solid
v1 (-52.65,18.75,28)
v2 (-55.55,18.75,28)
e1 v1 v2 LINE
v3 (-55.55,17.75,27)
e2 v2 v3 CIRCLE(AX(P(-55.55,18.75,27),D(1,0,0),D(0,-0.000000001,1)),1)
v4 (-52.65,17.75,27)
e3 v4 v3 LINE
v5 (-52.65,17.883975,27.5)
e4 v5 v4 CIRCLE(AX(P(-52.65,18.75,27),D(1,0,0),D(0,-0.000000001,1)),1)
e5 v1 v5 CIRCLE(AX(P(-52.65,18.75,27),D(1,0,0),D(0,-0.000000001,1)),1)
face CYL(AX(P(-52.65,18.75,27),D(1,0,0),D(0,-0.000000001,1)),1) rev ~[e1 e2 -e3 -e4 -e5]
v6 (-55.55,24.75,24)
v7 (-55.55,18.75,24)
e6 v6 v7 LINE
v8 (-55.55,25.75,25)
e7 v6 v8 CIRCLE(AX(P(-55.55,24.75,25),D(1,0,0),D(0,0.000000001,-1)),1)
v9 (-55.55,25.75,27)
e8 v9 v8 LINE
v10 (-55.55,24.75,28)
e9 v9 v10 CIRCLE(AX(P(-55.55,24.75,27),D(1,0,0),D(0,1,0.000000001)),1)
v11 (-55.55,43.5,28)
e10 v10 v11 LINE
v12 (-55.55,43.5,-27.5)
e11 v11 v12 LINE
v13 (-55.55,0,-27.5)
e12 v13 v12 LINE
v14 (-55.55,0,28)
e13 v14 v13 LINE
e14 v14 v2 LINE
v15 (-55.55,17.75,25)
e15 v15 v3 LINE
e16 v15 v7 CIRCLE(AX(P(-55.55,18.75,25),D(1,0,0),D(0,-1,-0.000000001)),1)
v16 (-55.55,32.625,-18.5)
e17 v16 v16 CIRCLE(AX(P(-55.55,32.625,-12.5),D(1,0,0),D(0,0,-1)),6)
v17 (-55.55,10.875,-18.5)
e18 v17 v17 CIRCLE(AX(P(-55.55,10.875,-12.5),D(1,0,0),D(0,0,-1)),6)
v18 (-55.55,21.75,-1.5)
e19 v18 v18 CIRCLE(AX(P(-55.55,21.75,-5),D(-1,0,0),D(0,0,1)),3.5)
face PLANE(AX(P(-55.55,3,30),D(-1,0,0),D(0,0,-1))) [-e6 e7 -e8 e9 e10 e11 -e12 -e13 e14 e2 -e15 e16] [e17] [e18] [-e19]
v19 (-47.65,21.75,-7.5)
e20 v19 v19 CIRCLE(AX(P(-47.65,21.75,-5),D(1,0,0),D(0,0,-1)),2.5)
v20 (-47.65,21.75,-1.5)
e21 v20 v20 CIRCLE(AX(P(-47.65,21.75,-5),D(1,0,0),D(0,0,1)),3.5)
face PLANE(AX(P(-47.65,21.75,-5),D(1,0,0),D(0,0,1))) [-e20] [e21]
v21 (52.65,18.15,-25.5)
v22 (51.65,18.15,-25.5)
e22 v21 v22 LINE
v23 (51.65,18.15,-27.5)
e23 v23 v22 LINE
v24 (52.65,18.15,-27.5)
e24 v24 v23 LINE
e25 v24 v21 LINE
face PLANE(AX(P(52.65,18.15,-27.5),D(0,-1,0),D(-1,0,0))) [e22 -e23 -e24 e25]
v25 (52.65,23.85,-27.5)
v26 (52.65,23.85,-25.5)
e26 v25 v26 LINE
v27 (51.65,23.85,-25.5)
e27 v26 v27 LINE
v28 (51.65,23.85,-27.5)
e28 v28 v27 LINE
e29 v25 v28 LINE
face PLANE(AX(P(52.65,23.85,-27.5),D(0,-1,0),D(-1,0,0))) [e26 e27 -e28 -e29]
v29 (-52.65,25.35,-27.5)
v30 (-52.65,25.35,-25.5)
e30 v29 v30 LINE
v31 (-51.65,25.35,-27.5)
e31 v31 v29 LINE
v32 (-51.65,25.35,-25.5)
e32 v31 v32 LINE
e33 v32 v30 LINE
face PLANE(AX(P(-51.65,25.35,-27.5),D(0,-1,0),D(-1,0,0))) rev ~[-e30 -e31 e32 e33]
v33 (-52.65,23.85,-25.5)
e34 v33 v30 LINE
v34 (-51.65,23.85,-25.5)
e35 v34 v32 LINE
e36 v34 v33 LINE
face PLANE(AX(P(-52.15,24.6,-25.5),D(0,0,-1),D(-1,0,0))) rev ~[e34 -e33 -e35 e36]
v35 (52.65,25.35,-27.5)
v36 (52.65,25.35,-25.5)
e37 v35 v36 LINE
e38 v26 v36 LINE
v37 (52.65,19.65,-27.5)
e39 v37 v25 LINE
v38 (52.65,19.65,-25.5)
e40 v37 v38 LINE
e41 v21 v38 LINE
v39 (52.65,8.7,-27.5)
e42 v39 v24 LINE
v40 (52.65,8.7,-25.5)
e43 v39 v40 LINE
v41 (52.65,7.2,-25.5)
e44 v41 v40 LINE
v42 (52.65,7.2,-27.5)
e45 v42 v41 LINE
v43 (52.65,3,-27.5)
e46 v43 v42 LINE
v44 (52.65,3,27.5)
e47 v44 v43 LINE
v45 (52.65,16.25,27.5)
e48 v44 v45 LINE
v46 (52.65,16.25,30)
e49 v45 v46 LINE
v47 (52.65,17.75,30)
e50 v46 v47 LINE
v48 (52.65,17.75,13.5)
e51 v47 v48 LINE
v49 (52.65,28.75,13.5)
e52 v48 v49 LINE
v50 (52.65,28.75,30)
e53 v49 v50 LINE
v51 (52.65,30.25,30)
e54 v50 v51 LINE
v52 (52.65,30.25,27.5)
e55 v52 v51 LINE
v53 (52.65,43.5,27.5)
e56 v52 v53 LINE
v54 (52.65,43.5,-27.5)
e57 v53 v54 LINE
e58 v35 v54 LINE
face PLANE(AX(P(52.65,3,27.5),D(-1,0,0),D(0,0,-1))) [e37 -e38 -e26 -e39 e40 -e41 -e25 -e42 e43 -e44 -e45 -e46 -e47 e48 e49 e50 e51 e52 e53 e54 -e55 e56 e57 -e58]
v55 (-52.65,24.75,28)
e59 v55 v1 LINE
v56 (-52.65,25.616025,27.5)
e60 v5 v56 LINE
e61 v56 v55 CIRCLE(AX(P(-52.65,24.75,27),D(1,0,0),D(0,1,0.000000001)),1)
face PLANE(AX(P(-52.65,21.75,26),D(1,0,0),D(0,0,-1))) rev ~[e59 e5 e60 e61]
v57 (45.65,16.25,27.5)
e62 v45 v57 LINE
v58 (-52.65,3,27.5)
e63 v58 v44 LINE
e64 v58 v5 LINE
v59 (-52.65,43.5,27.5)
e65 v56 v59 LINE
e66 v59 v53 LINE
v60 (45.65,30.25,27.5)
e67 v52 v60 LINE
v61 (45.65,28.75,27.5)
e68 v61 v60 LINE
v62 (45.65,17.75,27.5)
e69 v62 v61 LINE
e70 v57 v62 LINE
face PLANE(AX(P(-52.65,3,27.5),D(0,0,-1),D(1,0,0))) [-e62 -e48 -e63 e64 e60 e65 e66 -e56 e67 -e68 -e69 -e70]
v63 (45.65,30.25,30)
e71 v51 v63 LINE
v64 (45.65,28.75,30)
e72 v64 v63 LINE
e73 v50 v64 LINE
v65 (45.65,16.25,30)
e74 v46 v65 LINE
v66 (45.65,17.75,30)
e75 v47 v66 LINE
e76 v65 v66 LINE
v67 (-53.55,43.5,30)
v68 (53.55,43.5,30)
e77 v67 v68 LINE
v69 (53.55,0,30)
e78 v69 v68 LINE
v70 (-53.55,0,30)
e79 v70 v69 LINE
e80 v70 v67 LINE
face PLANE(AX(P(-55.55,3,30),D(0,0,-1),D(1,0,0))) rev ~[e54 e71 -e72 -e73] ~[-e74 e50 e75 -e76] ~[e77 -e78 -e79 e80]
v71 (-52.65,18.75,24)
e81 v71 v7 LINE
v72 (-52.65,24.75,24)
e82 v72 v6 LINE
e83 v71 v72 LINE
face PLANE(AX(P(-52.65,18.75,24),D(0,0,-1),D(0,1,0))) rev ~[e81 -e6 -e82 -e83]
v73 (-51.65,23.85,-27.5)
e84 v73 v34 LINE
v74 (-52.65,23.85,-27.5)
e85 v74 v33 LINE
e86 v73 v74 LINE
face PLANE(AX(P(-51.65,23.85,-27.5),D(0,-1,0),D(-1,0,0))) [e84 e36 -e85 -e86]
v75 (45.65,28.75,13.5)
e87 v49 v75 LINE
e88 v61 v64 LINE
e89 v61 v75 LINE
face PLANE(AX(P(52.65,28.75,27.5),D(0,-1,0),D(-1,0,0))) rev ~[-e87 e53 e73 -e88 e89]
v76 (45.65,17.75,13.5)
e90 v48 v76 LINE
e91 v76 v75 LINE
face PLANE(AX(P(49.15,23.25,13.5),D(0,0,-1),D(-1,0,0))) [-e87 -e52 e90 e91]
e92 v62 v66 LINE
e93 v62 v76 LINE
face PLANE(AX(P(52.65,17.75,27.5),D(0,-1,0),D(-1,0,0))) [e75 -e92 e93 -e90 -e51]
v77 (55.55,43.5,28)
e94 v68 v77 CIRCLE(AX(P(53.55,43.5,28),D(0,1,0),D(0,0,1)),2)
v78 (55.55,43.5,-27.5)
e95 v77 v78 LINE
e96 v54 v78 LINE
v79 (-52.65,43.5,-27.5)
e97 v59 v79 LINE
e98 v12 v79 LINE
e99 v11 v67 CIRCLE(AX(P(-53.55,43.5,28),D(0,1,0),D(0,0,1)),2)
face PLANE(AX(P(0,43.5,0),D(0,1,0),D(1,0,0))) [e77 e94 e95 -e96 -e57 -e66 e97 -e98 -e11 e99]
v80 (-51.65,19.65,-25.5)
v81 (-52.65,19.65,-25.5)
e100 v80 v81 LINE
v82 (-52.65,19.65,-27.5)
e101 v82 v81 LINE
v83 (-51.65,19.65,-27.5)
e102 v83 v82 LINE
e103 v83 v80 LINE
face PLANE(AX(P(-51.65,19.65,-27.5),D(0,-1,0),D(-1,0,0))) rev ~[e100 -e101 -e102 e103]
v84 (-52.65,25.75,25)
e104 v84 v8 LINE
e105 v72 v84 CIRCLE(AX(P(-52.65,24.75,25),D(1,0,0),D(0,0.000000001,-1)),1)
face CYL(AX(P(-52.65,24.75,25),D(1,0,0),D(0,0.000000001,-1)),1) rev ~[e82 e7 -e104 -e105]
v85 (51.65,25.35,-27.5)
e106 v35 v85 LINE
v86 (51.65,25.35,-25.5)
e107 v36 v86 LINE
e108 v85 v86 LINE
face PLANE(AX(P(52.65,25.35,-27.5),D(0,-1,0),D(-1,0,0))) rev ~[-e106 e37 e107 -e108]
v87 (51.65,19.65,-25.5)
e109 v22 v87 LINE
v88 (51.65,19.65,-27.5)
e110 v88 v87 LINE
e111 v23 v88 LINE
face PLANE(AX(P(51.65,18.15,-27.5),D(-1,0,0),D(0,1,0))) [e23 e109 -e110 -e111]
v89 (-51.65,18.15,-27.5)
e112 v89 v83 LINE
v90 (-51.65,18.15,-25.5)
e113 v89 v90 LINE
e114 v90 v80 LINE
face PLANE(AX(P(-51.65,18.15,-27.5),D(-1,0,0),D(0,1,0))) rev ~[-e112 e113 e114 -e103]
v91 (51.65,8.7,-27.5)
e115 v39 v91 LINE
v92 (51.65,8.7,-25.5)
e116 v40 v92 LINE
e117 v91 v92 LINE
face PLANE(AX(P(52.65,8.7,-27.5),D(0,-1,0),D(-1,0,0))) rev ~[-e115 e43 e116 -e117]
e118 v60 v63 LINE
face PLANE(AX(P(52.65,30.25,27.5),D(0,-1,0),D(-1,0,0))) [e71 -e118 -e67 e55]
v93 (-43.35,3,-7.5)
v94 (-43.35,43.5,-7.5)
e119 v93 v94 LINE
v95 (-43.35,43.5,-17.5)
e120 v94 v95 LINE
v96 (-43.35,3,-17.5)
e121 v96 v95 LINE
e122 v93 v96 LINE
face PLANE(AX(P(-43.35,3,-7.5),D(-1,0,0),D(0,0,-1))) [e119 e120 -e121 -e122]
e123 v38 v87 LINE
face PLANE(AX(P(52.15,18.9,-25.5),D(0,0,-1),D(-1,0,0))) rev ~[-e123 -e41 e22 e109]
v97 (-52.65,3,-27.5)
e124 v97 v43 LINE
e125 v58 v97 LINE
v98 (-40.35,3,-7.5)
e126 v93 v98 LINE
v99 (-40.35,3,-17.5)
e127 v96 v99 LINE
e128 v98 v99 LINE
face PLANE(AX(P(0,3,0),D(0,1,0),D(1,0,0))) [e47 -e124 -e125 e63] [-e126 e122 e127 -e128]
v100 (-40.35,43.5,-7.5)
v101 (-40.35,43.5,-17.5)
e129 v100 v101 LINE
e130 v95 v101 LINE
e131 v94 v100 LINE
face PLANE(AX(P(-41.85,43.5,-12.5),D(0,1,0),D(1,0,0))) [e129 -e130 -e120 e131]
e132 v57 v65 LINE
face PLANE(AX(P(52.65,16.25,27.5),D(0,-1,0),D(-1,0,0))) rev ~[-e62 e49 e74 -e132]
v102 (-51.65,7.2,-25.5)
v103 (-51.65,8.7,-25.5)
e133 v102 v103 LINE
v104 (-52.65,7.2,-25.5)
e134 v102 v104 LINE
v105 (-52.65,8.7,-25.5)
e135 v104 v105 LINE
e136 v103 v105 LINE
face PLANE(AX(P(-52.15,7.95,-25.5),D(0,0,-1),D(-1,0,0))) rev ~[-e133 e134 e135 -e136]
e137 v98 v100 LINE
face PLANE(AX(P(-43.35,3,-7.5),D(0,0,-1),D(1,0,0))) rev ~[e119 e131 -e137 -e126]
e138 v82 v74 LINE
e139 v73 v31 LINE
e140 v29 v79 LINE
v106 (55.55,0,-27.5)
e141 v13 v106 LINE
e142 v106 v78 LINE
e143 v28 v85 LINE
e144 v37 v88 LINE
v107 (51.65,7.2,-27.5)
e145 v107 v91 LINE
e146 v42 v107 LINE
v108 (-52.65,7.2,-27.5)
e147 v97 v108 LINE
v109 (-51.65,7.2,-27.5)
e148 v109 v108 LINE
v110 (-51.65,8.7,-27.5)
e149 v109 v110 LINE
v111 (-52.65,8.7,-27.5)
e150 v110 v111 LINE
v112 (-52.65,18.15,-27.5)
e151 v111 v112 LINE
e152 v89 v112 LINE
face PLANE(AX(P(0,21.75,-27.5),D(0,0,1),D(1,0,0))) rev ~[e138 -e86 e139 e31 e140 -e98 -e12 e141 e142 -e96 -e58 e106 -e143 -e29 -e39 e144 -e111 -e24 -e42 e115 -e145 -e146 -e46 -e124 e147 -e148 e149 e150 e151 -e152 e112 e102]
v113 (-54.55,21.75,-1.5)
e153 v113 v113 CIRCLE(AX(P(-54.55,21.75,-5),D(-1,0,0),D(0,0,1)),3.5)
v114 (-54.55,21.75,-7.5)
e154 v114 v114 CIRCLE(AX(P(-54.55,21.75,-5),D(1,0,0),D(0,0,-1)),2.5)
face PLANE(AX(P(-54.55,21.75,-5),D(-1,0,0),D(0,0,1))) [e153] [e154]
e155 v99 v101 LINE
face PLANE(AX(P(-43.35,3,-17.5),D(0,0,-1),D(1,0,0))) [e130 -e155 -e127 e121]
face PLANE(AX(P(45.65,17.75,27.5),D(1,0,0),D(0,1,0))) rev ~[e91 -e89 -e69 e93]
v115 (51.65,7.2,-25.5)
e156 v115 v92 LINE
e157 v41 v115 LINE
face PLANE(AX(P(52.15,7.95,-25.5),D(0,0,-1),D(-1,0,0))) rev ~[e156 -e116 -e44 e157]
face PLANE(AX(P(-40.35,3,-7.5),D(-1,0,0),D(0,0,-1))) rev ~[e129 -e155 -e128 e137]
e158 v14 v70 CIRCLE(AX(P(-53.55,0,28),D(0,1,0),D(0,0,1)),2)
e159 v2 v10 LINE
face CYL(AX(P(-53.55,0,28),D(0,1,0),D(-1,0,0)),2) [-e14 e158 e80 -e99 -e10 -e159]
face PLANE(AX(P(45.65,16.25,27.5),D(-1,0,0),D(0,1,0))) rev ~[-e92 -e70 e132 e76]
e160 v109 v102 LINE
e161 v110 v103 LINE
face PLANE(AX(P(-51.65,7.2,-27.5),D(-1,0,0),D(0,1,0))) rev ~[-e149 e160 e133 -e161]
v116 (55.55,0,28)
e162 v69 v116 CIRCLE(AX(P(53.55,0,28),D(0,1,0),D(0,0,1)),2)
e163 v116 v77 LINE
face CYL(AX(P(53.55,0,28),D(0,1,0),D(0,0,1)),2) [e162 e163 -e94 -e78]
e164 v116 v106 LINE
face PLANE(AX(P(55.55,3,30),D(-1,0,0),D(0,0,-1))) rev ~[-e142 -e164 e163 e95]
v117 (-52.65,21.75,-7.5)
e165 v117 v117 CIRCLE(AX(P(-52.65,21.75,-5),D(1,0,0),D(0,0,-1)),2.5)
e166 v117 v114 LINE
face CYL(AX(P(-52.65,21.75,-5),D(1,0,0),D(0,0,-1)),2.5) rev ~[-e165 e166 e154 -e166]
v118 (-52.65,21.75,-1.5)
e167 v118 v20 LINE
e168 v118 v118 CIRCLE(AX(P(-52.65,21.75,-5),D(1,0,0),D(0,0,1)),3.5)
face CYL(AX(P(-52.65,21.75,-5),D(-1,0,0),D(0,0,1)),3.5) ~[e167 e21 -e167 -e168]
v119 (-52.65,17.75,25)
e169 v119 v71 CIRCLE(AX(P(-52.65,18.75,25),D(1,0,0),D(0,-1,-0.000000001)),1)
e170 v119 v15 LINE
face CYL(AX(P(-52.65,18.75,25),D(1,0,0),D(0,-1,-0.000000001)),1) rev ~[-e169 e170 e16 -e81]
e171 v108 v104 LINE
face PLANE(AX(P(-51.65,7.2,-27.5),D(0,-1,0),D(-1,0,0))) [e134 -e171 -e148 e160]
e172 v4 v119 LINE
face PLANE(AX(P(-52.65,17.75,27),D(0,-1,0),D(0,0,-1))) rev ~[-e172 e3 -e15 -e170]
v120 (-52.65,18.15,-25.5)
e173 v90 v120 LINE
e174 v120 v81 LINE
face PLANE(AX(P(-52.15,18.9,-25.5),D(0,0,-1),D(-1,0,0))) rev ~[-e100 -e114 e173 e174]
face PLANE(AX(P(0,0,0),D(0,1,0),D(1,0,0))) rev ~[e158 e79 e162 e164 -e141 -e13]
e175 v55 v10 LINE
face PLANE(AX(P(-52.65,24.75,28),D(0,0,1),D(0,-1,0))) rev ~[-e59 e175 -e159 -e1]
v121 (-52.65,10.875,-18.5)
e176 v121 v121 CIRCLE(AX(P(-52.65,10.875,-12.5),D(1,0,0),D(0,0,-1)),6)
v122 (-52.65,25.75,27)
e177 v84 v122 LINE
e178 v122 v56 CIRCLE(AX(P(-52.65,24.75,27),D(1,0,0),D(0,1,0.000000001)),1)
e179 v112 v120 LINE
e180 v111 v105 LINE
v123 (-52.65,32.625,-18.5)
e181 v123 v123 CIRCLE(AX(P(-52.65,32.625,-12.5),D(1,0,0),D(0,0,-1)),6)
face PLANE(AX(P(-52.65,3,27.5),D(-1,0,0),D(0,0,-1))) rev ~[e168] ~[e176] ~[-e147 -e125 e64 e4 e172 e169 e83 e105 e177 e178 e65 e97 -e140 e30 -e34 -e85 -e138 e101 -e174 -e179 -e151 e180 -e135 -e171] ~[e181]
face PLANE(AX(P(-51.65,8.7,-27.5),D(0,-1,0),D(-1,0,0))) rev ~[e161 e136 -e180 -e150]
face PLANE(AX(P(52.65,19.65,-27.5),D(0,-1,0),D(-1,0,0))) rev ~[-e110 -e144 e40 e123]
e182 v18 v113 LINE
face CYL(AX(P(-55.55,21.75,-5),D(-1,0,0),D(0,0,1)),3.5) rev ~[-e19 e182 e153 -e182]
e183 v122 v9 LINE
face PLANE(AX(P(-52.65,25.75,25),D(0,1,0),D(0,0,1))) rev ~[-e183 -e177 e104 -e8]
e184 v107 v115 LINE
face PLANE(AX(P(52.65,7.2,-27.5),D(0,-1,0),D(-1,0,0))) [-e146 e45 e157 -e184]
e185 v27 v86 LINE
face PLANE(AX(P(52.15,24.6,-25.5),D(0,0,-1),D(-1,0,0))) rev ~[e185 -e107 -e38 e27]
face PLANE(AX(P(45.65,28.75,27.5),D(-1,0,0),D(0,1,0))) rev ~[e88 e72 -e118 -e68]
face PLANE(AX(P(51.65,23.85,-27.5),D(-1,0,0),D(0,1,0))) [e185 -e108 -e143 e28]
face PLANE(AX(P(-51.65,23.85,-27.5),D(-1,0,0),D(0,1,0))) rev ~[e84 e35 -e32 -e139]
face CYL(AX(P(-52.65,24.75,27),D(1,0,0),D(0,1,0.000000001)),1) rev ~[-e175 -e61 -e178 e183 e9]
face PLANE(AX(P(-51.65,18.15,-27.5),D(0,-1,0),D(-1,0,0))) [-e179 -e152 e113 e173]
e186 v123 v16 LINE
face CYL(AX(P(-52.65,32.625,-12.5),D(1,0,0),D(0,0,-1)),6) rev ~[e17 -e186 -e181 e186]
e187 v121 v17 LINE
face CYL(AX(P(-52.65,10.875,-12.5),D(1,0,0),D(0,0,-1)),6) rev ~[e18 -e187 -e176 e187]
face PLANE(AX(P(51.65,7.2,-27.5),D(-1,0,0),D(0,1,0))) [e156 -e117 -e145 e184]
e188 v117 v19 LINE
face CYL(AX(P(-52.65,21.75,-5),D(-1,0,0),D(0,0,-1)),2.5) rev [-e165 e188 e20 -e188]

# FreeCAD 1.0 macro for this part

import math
import FreeCAD as App
import Part
import Sketcher

V = App.Vector


def edges_at(feature, points):
    """Names of the edges that pass closest to the given points."""
    edges = feature.Shape.Edges
    near = lambda p: min(range(len(edges)), key=lambda i: edges[i].distToShape(Part.Vertex(*p))[0])
    return sorted({f"Edge{near(p) + 1}" for p in points})

doc = App.newDocument("Part")
body = doc.addObject("PartDesign::Body", "Body")

# Sketch on XZ plane
sketch1 = body.newObject("Sketcher::SketchObject", "Sketch")
sketch1.AttachmentSupport = (doc.getObject("XZ_Plane"), [""])
sketch1.MapMode = "FlatFace"
sketch1.addGeometry([
    Part.LineSegment(V(-55.55, -30, 0), V(-55.55, 30, 0)),
    Part.LineSegment(V(-55.55, 30, 0), V(55.55, 30, 0)),
    Part.LineSegment(V(55.55, 30, 0), V(55.55, -30, 0)),
    Part.LineSegment(V(55.55, -30, 0), V(-55.55, -30, 0)),
], False)
sketch1.addConstraint([
    Sketcher.Constraint("Coincident", 0, 2, 1, 1),
    Sketcher.Constraint("Coincident", 1, 2, 2, 1),
    Sketcher.Constraint("Coincident", 2, 2, 3, 1),
    Sketcher.Constraint("Coincident", 3, 2, 0, 1),
    Sketcher.Constraint("Vertical", 0),
    Sketcher.Constraint("Horizontal", 1),
    Sketcher.Constraint("Vertical", 2),
    Sketcher.Constraint("Horizontal", 3),
    Sketcher.Constraint("Symmetric", 0, 2, 2, 2, -1, 1),
    Sketcher.Constraint("DistanceY", 0, 1, 0, 2, 60.0),
    Sketcher.Constraint("DistanceX", 1, 1, 1, 2, 111.1),
])
pad1 = body.newObject("PartDesign::Pad", "Pad")
pad1.Profile = sketch1
pad1.Length = 3
pad1.Reversed = True

# Sketch on XZ plane
sketch2 = body.newObject("Sketcher::SketchObject", "Sketch001")
sketch2.AttachmentSupport = (doc.getObject("XZ_Plane"), [""])
sketch2.MapMode = "FlatFace"
sketch2.AttachmentOffset = App.Placement(V(0, 0, -3), App.Rotation())
sketch2.addGeometry([
    Part.LineSegment(V(-55.55, -30, 0), V(-55.55, 30, 0)),  # 0
    Part.LineSegment(V(-55.55, 30, 0), V(55.55, 30, 0)),  # 1
    Part.LineSegment(V(55.55, 30, 0), V(55.55, -30, 0)),  # 2
    Part.LineSegment(V(55.55, -30, 0), V(-55.55, -30, 0)),  # 3
    Part.LineSegment(V(52.65, 27.5, 0), V(-52.65, 27.5, 0)),  # 4
    Part.LineSegment(V(-52.65, 27.5, 0), V(-52.65, -27.5, 0)),  # 5
    Part.LineSegment(V(-52.65, -27.5, 0), V(52.65, -27.5, 0)),  # 6
    Part.LineSegment(V(52.65, -27.5, 0), V(52.65, 27.5, 0)),  # 7
], False)
sketch2.addConstraint([
    Sketcher.Constraint("Coincident", 0, 2, 1, 1),
    Sketcher.Constraint("Coincident", 1, 2, 2, 1),
    Sketcher.Constraint("Coincident", 2, 2, 3, 1),
    Sketcher.Constraint("Coincident", 3, 2, 0, 1),
    Sketcher.Constraint("Coincident", 4, 2, 5, 1),
    Sketcher.Constraint("Coincident", 5, 2, 6, 1),
    Sketcher.Constraint("Coincident", 6, 2, 7, 1),
    Sketcher.Constraint("Coincident", 7, 2, 4, 1),
    Sketcher.Constraint("Vertical", 0),
    Sketcher.Constraint("Horizontal", 1),
    Sketcher.Constraint("Vertical", 2),
    Sketcher.Constraint("Horizontal", 3),
    Sketcher.Constraint("Horizontal", 4),
    Sketcher.Constraint("Vertical", 5),
    Sketcher.Constraint("Horizontal", 6),
    Sketcher.Constraint("Vertical", 7),
    Sketcher.Constraint("Symmetric", 0, 2, 2, 2, -1, 1),
    Sketcher.Constraint("Symmetric", 4, 2, 6, 2, -1, 1),
    Sketcher.Constraint("DistanceY", 0, 1, 0, 2, 60.0),
    Sketcher.Constraint("DistanceY", 5, 2, 5, 1, 55.0),
    Sketcher.Constraint("DistanceX", 1, 1, 1, 2, 111.1),
    Sketcher.Constraint("DistanceX", 4, 2, 4, 1, 105.3),
])
pad2 = body.newObject("PartDesign::Pad", "Pad001")
pad2.Profile = sketch2
pad2.Length = 40.5
pad2.Reversed = True

# Sketch on XY plane
sketch3 = body.newObject("Sketcher::SketchObject", "Sketch002")
sketch3.AttachmentSupport = (doc.getObject("XY_Plane"), [""])
sketch3.MapMode = "FlatFace"
sketch3.AttachmentOffset = App.Placement(V(0, 0, -30), App.Rotation())
sketch3.addGeometry([
    Part.Circle(V(27.775, 21.75, 0), V(0, 0, 1), 21),
    Part.Circle(V(-27.775, 21.75, 0), V(0, 0, 1), 21),
], False)
sketch3.addConstraint([
    Sketcher.Constraint("Equal", 0, 1),
    Sketcher.Constraint("Symmetric", 0, 3, 1, 3, -2),
    Sketcher.Constraint("Diameter", 0, 42.0),
    Sketcher.Constraint("DistanceY", -1, 1, 0, 3, 21.75),
    Sketcher.Constraint("DistanceX", 1, 3, 0, 3, 55.55),
])
pad3 = body.newObject("PartDesign::Pad", "Pad002")
pad3.Profile = sketch3
pad3.Length = 15
pad3.Reversed = True

# Sketch on XY plane
sketch4 = body.newObject("Sketcher::SketchObject", "Sketch003")
sketch4.AttachmentSupport = (doc.getObject("XY_Plane"), [""])
sketch4.MapMode = "FlatFace"
sketch4.AttachmentOffset = App.Placement(V(0, 0, -45), App.Rotation())
sketch4.addGeometry([
    Part.LineSegment(V(35.525, 40.25, 0), V(35.525, 3.25, 0)),  # 0
    Part.LineSegment(V(35.525, 3.25, 0), V(20.025, 3.25, 0)),  # 1
    Part.LineSegment(V(20.025, 3.25, 0), V(20.025, 40.25, 0)),  # 2
    Part.LineSegment(V(20.025, 40.25, 0), V(35.525, 40.25, 0)),  # 3
    Part.LineSegment(V(-20.025, 40.25, 0), V(-20.025, 3.25, 0)),  # 4
    Part.LineSegment(V(-20.025, 3.25, 0), V(-35.525, 3.25, 0)),  # 5
    Part.LineSegment(V(-35.525, 3.25, 0), V(-35.525, 40.25, 0)),  # 6
    Part.LineSegment(V(-35.525, 40.25, 0), V(-20.025, 40.25, 0)),  # 7
], False)
sketch4.addConstraint([
    Sketcher.Constraint("Coincident", 0, 2, 1, 1),
    Sketcher.Constraint("Coincident", 1, 2, 2, 1),
    Sketcher.Constraint("Coincident", 2, 2, 3, 1),
    Sketcher.Constraint("Coincident", 3, 2, 0, 1),
    Sketcher.Constraint("Coincident", 4, 2, 5, 1),
    Sketcher.Constraint("Coincident", 5, 2, 6, 1),
    Sketcher.Constraint("Coincident", 6, 2, 7, 1),
    Sketcher.Constraint("Coincident", 7, 2, 4, 1),
    Sketcher.Constraint("Vertical", 0),
    Sketcher.Constraint("Horizontal", 1),
    Sketcher.Constraint("Vertical", 2),
    Sketcher.Constraint("Horizontal", 3),
    Sketcher.Constraint("Vertical", 4),
    Sketcher.Constraint("Horizontal", 5),
    Sketcher.Constraint("Vertical", 6),
    Sketcher.Constraint("Horizontal", 7),
    Sketcher.Constraint("Symmetric", 1, 2, 4, 2, -2),
    Sketcher.Constraint("Symmetric", 3, 2, 6, 2, -2),
    Sketcher.Constraint("DistanceY", 0, 2, 0, 1, 37.0),
    Sketcher.Constraint("DistanceX", 1, 2, 1, 1, 15.5),
    Sketcher.Constraint("DistanceY", -1, 1, 0, 2, 3.25),
    Sketcher.Constraint("DistanceX", 4, 2, 1, 2, 40.05),
])
pocket1 = body.newObject("PartDesign::Pocket", "Pocket")
pocket1.Profile = sketch4
pocket1.Length = 21
pocket1.Reversed = True

# Sketch on XY plane
sketch5 = body.newObject("Sketcher::SketchObject", "Sketch004")
sketch5.AttachmentSupport = (doc.getObject("XY_Plane"), [""])
sketch5.MapMode = "FlatFace"
sketch5.AttachmentOffset = App.Placement(V(0, 0, -44), App.Rotation())
sketch5.addGeometry([
    Part.Circle(V(27.775, 21.75, 0), V(0, 0, 1), 21),  # 0
    Part.LineSegment(V(21.625, 4.6, 0), V(33.925, 4.6, 0)),  # 1
    Part.LineSegment(V(33.925, 4.6, 0), V(33.925, 38.9, 0)),  # 2
    Part.LineSegment(V(33.925, 38.9, 0), V(21.625, 38.9, 0)),  # 3
    Part.LineSegment(V(21.625, 38.9, 0), V(21.625, 4.6, 0)),  # 4
], False)
sketch5.addConstraint([
    Sketcher.Constraint("Coincident", 1, 2, 2, 1),
    Sketcher.Constraint("Coincident", 2, 2, 3, 1),
    Sketcher.Constraint("Coincident", 3, 2, 4, 1),
    Sketcher.Constraint("Coincident", 4, 2, 1, 1),
    Sketcher.Constraint("Horizontal", 1),
    Sketcher.Constraint("Vertical", 2),
    Sketcher.Constraint("Horizontal", 3),
    Sketcher.Constraint("Vertical", 4),
    Sketcher.Constraint("Diameter", 0, 42.0),
    Sketcher.Constraint("DistanceX", 1, 1, 1, 2, 12.3),
    Sketcher.Constraint("DistanceY", 2, 1, 2, 2, 34.3),
    Sketcher.Constraint("DistanceY", -1, 1, 1, 2, 4.6),
    Sketcher.Constraint("DistanceY", -1, 1, 0, 3, 21.75),
    Sketcher.Constraint("DistanceX", 0, 3, 1, 2, 6.15),
    Sketcher.Constraint("DistanceX", -1, 1, 0, 3, 27.775),
])
pad4 = body.newObject("PartDesign::Pad", "Pad003")
pad4.Profile = sketch5
pad4.Length = 1
pad4.Reversed = True

# Sketch on XY plane
sketch6 = body.newObject("Sketcher::SketchObject", "Sketch005")
sketch6.AttachmentSupport = (doc.getObject("XY_Plane"), [""])
sketch6.MapMode = "FlatFace"
sketch6.AttachmentOffset = App.Placement(V(0, 0, -44), App.Rotation())
sketch6.addGeometry([
    Part.Circle(V(-27.775, 21.75, 0), V(0, 0, 1), 21),  # 0
    Part.LineSegment(V(-33.925, 4.6, 0), V(-21.625, 4.6, 0)),  # 1
    Part.LineSegment(V(-21.625, 4.6, 0), V(-21.625, 38.9, 0)),  # 2
    Part.LineSegment(V(-21.625, 38.9, 0), V(-33.925, 38.9, 0)),  # 3
    Part.LineSegment(V(-33.925, 38.9, 0), V(-33.925, 4.6, 0)),  # 4
], False)
sketch6.addConstraint([
    Sketcher.Constraint("Coincident", 1, 2, 2, 1),
    Sketcher.Constraint("Coincident", 2, 2, 3, 1),
    Sketcher.Constraint("Coincident", 3, 2, 4, 1),
    Sketcher.Constraint("Coincident", 4, 2, 1, 1),
    Sketcher.Constraint("Horizontal", 1),
    Sketcher.Constraint("Vertical", 2),
    Sketcher.Constraint("Horizontal", 3),
    Sketcher.Constraint("Vertical", 4),
    Sketcher.Constraint("Diameter", 0, 42.0),
    Sketcher.Constraint("DistanceX", 1, 1, 1, 2, 12.3),
    Sketcher.Constraint("DistanceY", 2, 1, 2, 2, 34.3),
    Sketcher.Constraint("DistanceY", -1, 1, 1, 2, 4.6),
    Sketcher.Constraint("DistanceY", -1, 1, 0, 3, 21.75),
    Sketcher.Constraint("DistanceX", 0, 3, 1, 2, 6.15),
    Sketcher.Constraint("DistanceX", 0, 3, -1, 1, 27.775),
])
pad5 = body.newObject("PartDesign::Pad", "Pad004")
pad5.Profile = sketch6
pad5.Length = 1
pad5.Reversed = True

# Sketch on XY plane
sketch7 = body.newObject("Sketcher::SketchObject", "Sketch006")
sketch7.AttachmentSupport = (doc.getObject("XY_Plane"), [""])
sketch7.MapMode = "FlatFace"
sketch7.AttachmentOffset = App.Placement(V(0, 0, -27.5), App.Rotation())
sketch7.addGeometry([
    Part.LineSegment(V(-63.122277, 56.09859, 0), V(-63.122277, -12.59859, 0)),
    Part.LineSegment(V(-63.122277, -12.59859, 0), V(63.122277, -12.59859, 0)),
    Part.LineSegment(V(63.122277, -12.59859, 0), V(63.122277, 56.09859, 0)),
    Part.LineSegment(V(63.122277, 56.09859, 0), V(-63.122277, 56.09859, 0)),
], False)
sketch7.addConstraint([
    Sketcher.Constraint("Coincident", 0, 2, 1, 1),
    Sketcher.Constraint("Coincident", 1, 2, 2, 1),
    Sketcher.Constraint("Coincident", 2, 2, 3, 1),
    Sketcher.Constraint("Coincident", 3, 2, 0, 1),
    Sketcher.Constraint("Vertical", 0),
    Sketcher.Constraint("Horizontal", 1),
    Sketcher.Constraint("Vertical", 2),
    Sketcher.Constraint("Horizontal", 3),
    Sketcher.Constraint("DistanceY", 0, 2, 0, 1, 68.697179),
    Sketcher.Constraint("DistanceX", 1, 1, 1, 2, 126.244555),
    Sketcher.Constraint("DistanceY", 0, 2, -1, 1, 12.59859),
    Sketcher.Constraint("DistanceX", 0, 2, -1, 1, 63.122277),
])
pocket2 = body.newObject("PartDesign::Pocket", "Pocket001")
pocket2.Profile = sketch7
pocket2.Length = 53

# Sketch on XY plane
sketch8 = body.newObject("Sketcher::SketchObject", "Sketch007")
sketch8.AttachmentSupport = (doc.getObject("XY_Plane"), [""])
sketch8.MapMode = "FlatFace"
sketch8.AttachmentOffset = App.Placement(V(0, 0, -27.5), App.Rotation())
sketch8.addGeometry([
    Part.LineSegment(V(-51.65, 19.65, 0), V(-51.65, 18.15, 0)),  # 0
    Part.LineSegment(V(-51.65, 18.15, 0), V(-52.65, 18.15, 0)),  # 1
    Part.LineSegment(V(-52.65, 18.15, 0), V(-52.65, 19.65, 0)),  # 2
    Part.LineSegment(V(-52.65, 19.65, 0), V(-51.65, 19.65, 0)),  # 3
    Part.LineSegment(V(-51.65, 8.7, 0), V(-51.65, 7.2, 0)),  # 4
    Part.LineSegment(V(-51.65, 7.2, 0), V(-52.65, 7.2, 0)),  # 5
    Part.LineSegment(V(-52.65, 7.2, 0), V(-52.65, 8.7, 0)),  # 6
    Part.LineSegment(V(-52.65, 8.7, 0), V(-51.65, 8.7, 0)),  # 7
    Part.LineSegment(V(52.65, 19.65, 0), V(52.65, 18.15, 0)),  # 8
    Part.LineSegment(V(52.65, 18.15, 0), V(51.65, 18.15, 0)),  # 9
    Part.LineSegment(V(51.65, 18.15, 0), V(51.65, 19.65, 0)),  # 10
    Part.LineSegment(V(51.65, 19.65, 0), V(52.65, 19.65, 0)),  # 11
    Part.LineSegment(V(52.65, 25.35, 0), V(52.65, 23.85, 0)),  # 12
    Part.LineSegment(V(52.65, 23.85, 0), V(51.65, 23.85, 0)),  # 13
    Part.LineSegment(V(51.65, 23.85, 0), V(51.65, 25.35, 0)),  # 14
    Part.LineSegment(V(51.65, 25.35, 0), V(52.65, 25.35, 0)),  # 15
    Part.LineSegment(V(-51.65, 25.35, 0), V(-51.65, 23.85, 0)),  # 16
    Part.LineSegment(V(-51.65, 23.85, 0), V(-52.65, 23.85, 0)),  # 17
    Part.LineSegment(V(-52.65, 23.85, 0), V(-52.65, 25.35, 0)),  # 18
    Part.LineSegment(V(-52.65, 25.35, 0), V(-51.65, 25.35, 0)),  # 19
    Part.LineSegment(V(52.65, 8.7, 0), V(52.65, 7.2, 0)),  # 20
    Part.LineSegment(V(52.65, 7.2, 0), V(51.65, 7.2, 0)),  # 21
    Part.LineSegment(V(51.65, 7.2, 0), V(51.65, 8.7, 0)),  # 22
    Part.LineSegment(V(51.65, 8.7, 0), V(52.65, 8.7, 0)),  # 23
], False)
sketch8.addConstraint([
    Sketcher.Constraint("Coincident", 0, 2, 1, 1),
    Sketcher.Constraint("Coincident", 1, 2, 2, 1),
    Sketcher.Constraint("Coincident", 2, 2, 3, 1),
    Sketcher.Constraint("Coincident", 3, 2, 0, 1),
    Sketcher.Constraint("Coincident", 4, 2, 5, 1),
    Sketcher.Constraint("Coincident", 5, 2, 6, 1),
    Sketcher.Constraint("Coincident", 6, 2, 7, 1),
    Sketcher.Constraint("Coincident", 7, 2, 4, 1),
    Sketcher.Constraint("Coincident", 8, 2, 9, 1),
    Sketcher.Constraint("Coincident", 9, 2, 10, 1),
    Sketcher.Constraint("Coincident", 10, 2, 11, 1),
    Sketcher.Constraint("Coincident", 11, 2, 8, 1),
    Sketcher.Constraint("Coincident", 12, 2, 13, 1),
    Sketcher.Constraint("Coincident", 13, 2, 14, 1),
    Sketcher.Constraint("Coincident", 14, 2, 15, 1),
    Sketcher.Constraint("Coincident", 15, 2, 12, 1),
    Sketcher.Constraint("Coincident", 16, 2, 17, 1),
    Sketcher.Constraint("Coincident", 17, 2, 18, 1),
    Sketcher.Constraint("Coincident", 18, 2, 19, 1),
    Sketcher.Constraint("Coincident", 19, 2, 16, 1),
    Sketcher.Constraint("Coincident", 20, 2, 21, 1),
    Sketcher.Constraint("Coincident", 21, 2, 22, 1),
    Sketcher.Constraint("Coincident", 22, 2, 23, 1),
    Sketcher.Constraint("Coincident", 23, 2, 20, 1),
    Sketcher.Constraint("Vertical", 0),
    Sketcher.Constraint("Horizontal", 1),
    Sketcher.Constraint("Vertical", 2),
    Sketcher.Constraint("Horizontal", 3),
    Sketcher.Constraint("Vertical", 4),
    Sketcher.Constraint("Horizontal", 5),
    Sketcher.Constraint("Vertical", 6),
    Sketcher.Constraint("Horizontal", 7),
    Sketcher.Constraint("Vertical", 8),
    Sketcher.Constraint("Horizontal", 9),
    Sketcher.Constraint("Vertical", 10),
    Sketcher.Constraint("Horizontal", 11),
    Sketcher.Constraint("Vertical", 12),
    Sketcher.Constraint("Horizontal", 13),
    Sketcher.Constraint("Vertical", 14),
    Sketcher.Constraint("Horizontal", 15),
    Sketcher.Constraint("Vertical", 16),
    Sketcher.Constraint("Horizontal", 17),
    Sketcher.Constraint("Vertical", 18),
    Sketcher.Constraint("Horizontal", 19),
    Sketcher.Constraint("Vertical", 20),
    Sketcher.Constraint("Horizontal", 21),
    Sketcher.Constraint("Vertical", 22),
    Sketcher.Constraint("Horizontal", 23),
    Sketcher.Constraint("Symmetric", 1, 2, 8, 2, -2),
    Sketcher.Constraint("Symmetric", 3, 2, 10, 2, -2),
    Sketcher.Constraint("Symmetric", 13, 2, 16, 2, -2),
    Sketcher.Constraint("Symmetric", 15, 2, 18, 2, -2),
    Sketcher.Constraint("Symmetric", 5, 2, 20, 2, -2),
    Sketcher.Constraint("Symmetric", 7, 2, 22, 2, -2),
    Sketcher.Constraint("Vertical", 3, 2, 4, 2),
    Sketcher.Constraint("Vertical", 2, 2, 5, 2),
    Sketcher.Constraint("Vertical", 11, 2, 12, 2),
    Sketcher.Constraint("Vertical", 10, 2, 13, 2),
    Sketcher.Constraint("Equal", 2, 4),
    Sketcher.Constraint("Equal", 10, 12),
    Sketcher.Constraint("DistanceX", 1, 2, 1, 1, 1.0),
    Sketcher.Constraint("DistanceY", 0, 2, 0, 1, 1.5),
    Sketcher.Constraint("DistanceY", -1, 1, 4, 2, 7.2),
    Sketcher.Constraint("DistanceX", 0, 2, 8, 2, 104.3),
    Sketcher.Constraint("DistanceY", 11, 2, 12, 2, 4.2),
    Sketcher.Constraint("DistanceY", -1, 1, 0, 2, 18.15),
])
pad6 = body.newObject("PartDesign::Pad", "Pad005")
pad6.Profile = sketch8
pad6.Length = 2
doc.recompute()

fillet = body.newObject("PartDesign::Fillet", "Fillet")
fillet.Base = (pad6, edges_at(pad6, [(55.55, 21.75, 30), (-55.55, 21.75, 30)]))
fillet.Radius = 2

# Sketch on YZ plane
sketch9 = body.newObject("Sketcher::SketchObject", "Sketch008")
sketch9.AttachmentSupport = (doc.getObject("YZ_Plane"), [""])
sketch9.MapMode = "FlatFace"
sketch9.AttachmentOffset = App.Placement(V(0, 0, -52.65), App.Rotation())
sketch9.addGeometry([
    Part.Circle(V(32.625, -12.5, 0), V(0, 0, 1), 6),  # 0
    Part.Circle(V(10.875, -12.5, 0), V(0, 0, 1), 6),  # 1
    Part.Circle(V(21.75, -5, 0), V(0, 0, 1), 2.5),  # 2
    Part.LineSegment(V(25.75, 25, 0), V(25.75, 27, 0)),  # 3
    Part.ArcOfCircle(Part.Circle(V(24.75, 27, 0), V(0, 0, 1), 1), math.radians(0), math.radians(90)),  # 4
    Part.LineSegment(V(24.75, 28, 0), V(18.75, 28, 0)),  # 5
    Part.ArcOfCircle(Part.Circle(V(18.75, 27, 0), V(0, 0, 1), 1), math.radians(90), math.radians(180)),  # 6
    Part.LineSegment(V(17.75, 27, 0), V(17.75, 25, 0)),  # 7
    Part.ArcOfCircle(Part.Circle(V(18.75, 25, 0), V(0, 0, 1), 1), math.radians(-180), math.radians(-90)),  # 8
    Part.LineSegment(V(18.75, 24, 0), V(24.75, 24, 0)),  # 9
    Part.ArcOfCircle(Part.Circle(V(24.75, 25, 0), V(0, 0, 1), 1), math.radians(-90), math.radians(0)),  # 10
], False)
sketch9.addConstraint([
    Sketcher.Constraint("Tangent", 3, 2, 4, 1),
    Sketcher.Constraint("Tangent", 4, 2, 5, 1),
    Sketcher.Constraint("Tangent", 5, 2, 6, 1),
    Sketcher.Constraint("Tangent", 6, 2, 7, 1),
    Sketcher.Constraint("Tangent", 7, 2, 8, 1),
    Sketcher.Constraint("Tangent", 8, 2, 9, 1),
    Sketcher.Constraint("Tangent", 9, 2, 10, 1),
    Sketcher.Constraint("Tangent", 10, 2, 3, 1),
    Sketcher.Constraint("Vertical", 3),
    Sketcher.Constraint("Horizontal", 5),
    Sketcher.Constraint("Vertical", 7),
    Sketcher.Constraint("Horizontal", 9),
    Sketcher.Constraint("Equal", 0, 1),
    Sketcher.Constraint("Equal", 4, 6),
    Sketcher.Constraint("Equal", 6, 8),
    Sketcher.Constraint("Equal", 8, 10),
    Sketcher.Constraint("Horizontal", 0, 3, 1, 3),
    Sketcher.Constraint("Diameter", 0, 12.0),
    Sketcher.Constraint("Diameter", 2, 5.0),
    Sketcher.Constraint("Radius", 4, 1.0),
    Sketcher.Constraint("DistanceX", 5, 2, 5, 1, 6.0),
    Sketcher.Constraint("DistanceY", 3, 1, 3, 2, 2.0),
    Sketcher.Constraint("DistanceY", 2, 3, -1, 1, 5.0),
    Sketcher.Constraint("DistanceY", -1, 1, 4, 3, 27.0),
    Sketcher.Constraint("DistanceX", 2, 3, 4, 3, 3.0),
    Sketcher.Constraint("DistanceY", 0, 3, -1, 1, 12.5),
    Sketcher.Constraint("DistanceX", -1, 1, 2, 3, 21.75),
    Sketcher.Constraint("DistanceX", 1, 3, 0, 3, 21.75),
    Sketcher.Constraint("DistanceX", -1, 1, 0, 3, 32.625),
])
pocket3 = body.newObject("PartDesign::Pocket", "Pocket002")
pocket3.Profile = sketch9
pocket3.Length = 14

# Sketch on XZ plane
sketch10 = body.newObject("Sketcher::SketchObject", "Sketch009")
sketch10.AttachmentSupport = (doc.getObject("XZ_Plane"), [""])
sketch10.MapMode = "FlatFace"
sketch10.AttachmentOffset = App.Placement(V(0, 0, -3), App.Rotation())
sketch10.addGeometry([
    Part.LineSegment(V(-43.35, -17.5, 0), V(-43.35, -7.5, 0)),
    Part.LineSegment(V(-43.35, -7.5, 0), V(-40.35, -7.5, 0)),
    Part.LineSegment(V(-40.35, -7.5, 0), V(-40.35, -17.5, 0)),
    Part.LineSegment(V(-40.35, -17.5, 0), V(-43.35, -17.5, 0)),
], False)
sketch10.addConstraint([
    Sketcher.Constraint("Coincident", 0, 2, 1, 1),
    Sketcher.Constraint("Coincident", 1, 2, 2, 1),
    Sketcher.Constraint("Coincident", 2, 2, 3, 1),
    Sketcher.Constraint("Coincident", 3, 2, 0, 1),
    Sketcher.Constraint("Vertical", 0),
    Sketcher.Constraint("Horizontal", 1),
    Sketcher.Constraint("Vertical", 2),
    Sketcher.Constraint("Horizontal", 3),
    Sketcher.Constraint("DistanceX", 1, 1, 1, 2, 3.0),
    Sketcher.Constraint("DistanceY", 0, 1, 0, 2, 10.0),
    Sketcher.Constraint("DistanceY", 0, 2, -1, 1, 7.5),
    Sketcher.Constraint("DistanceX", 0, 2, -1, 1, 43.35),
])
pad7 = body.newObject("PartDesign::Pad", "Pad006")
pad7.Profile = sketch10
pad7.Length = 40.5
pad7.Reversed = True

# Sketch on YZ plane
sketch11 = body.newObject("Sketcher::SketchObject", "Sketch010")
sketch11.AttachmentSupport = (doc.getObject("YZ_Plane"), [""])
sketch11.MapMode = "FlatFace"
sketch11.AttachmentOffset = App.Placement(V(0, 0, -55.55), App.Rotation())
sketch11.addGeometry(Part.Circle(V(21.75, -5, 0), V(0, 0, 1), 3.5), False)
sketch11.addConstraint([
    Sketcher.Constraint("Diameter", 0, 7.0),
    Sketcher.Constraint("DistanceY", 0, 3, -1, 1, 5.0),
    Sketcher.Constraint("DistanceX", -1, 1, 0, 3, 21.75),
])
pocket4 = body.newObject("PartDesign::Pocket", "Pocket003")
pocket4.Profile = sketch11
pocket4.Length = 1
pocket4.Reversed = True

# Sketch on XY plane
sketch12 = body.newObject("Sketcher::SketchObject", "Sketch011")
sketch12.AttachmentSupport = (doc.getObject("XY_Plane"), [""])
sketch12.MapMode = "FlatFace"
sketch12.AttachmentOffset = App.Placement(V(0, 0, 27.5), App.Rotation())
sketch12.addGeometry([
    Part.LineSegment(V(52.65, 28.75, 0), V(52.65, 17.75, 0)),
    Part.LineSegment(V(52.65, 17.75, 0), V(45.65, 17.75, 0)),
    Part.LineSegment(V(45.65, 17.75, 0), V(45.65, 28.75, 0)),
    Part.LineSegment(V(45.65, 28.75, 0), V(52.65, 28.75, 0)),
], False)
sketch12.addConstraint([
    Sketcher.Constraint("Coincident", 0, 2, 1, 1),
    Sketcher.Constraint("Coincident", 1, 2, 2, 1),
    Sketcher.Constraint("Coincident", 2, 2, 3, 1),
    Sketcher.Constraint("Coincident", 3, 2, 0, 1),
    Sketcher.Constraint("Vertical", 0),
    Sketcher.Constraint("Horizontal", 1),
    Sketcher.Constraint("Vertical", 2),
    Sketcher.Constraint("Horizontal", 3),
    Sketcher.Constraint("DistanceX", 1, 2, 1, 1, 7.0),
    Sketcher.Constraint("DistanceY", 0, 2, 0, 1, 11.0),
    Sketcher.Constraint("DistanceX", -1, 1, 0, 2, 52.65),
    Sketcher.Constraint("DistanceY", -1, 1, 0, 2, 17.75),
])
pad8 = body.newObject("PartDesign::Pad", "Pad007")
pad8.Profile = sketch12
pad8.Length = 14
pad8.Reversed = True

# Sketch on XY plane
sketch13 = body.newObject("Sketcher::SketchObject", "Sketch012")
sketch13.AttachmentSupport = (doc.getObject("XY_Plane"), [""])
sketch13.MapMode = "FlatFace"
sketch13.AttachmentOffset = App.Placement(V(0, 0, 27.5), App.Rotation())
sketch13.addGeometry([
    Part.LineSegment(V(52.65, 30.25, 0), V(52.65, 28.75, 0)),  # 0
    Part.LineSegment(V(52.65, 28.75, 0), V(45.65, 28.75, 0)),  # 1
    Part.LineSegment(V(45.65, 28.75, 0), V(45.65, 30.25, 0)),  # 2
    Part.LineSegment(V(45.65, 30.25, 0), V(52.65, 30.25, 0)),  # 3
    Part.LineSegment(V(52.65, 17.75, 0), V(52.65, 16.25, 0)),  # 4
    Part.LineSegment(V(52.65, 16.25, 0), V(45.65, 16.25, 0)),  # 5
    Part.LineSegment(V(45.65, 16.25, 0), V(45.65, 17.75, 0)),  # 6
    Part.LineSegment(V(45.65, 17.75, 0), V(52.65, 17.75, 0)),  # 7
], False)
sketch13.addConstraint([
    Sketcher.Constraint("Coincident", 0, 2, 1, 1),
    Sketcher.Constraint("Coincident", 1, 2, 2, 1),
    Sketcher.Constraint("Coincident", 2, 2, 3, 1),
    Sketcher.Constraint("Coincident", 3, 2, 0, 1),
    Sketcher.Constraint("Coincident", 4, 2, 5, 1),
    Sketcher.Constraint("Coincident", 5, 2, 6, 1),
    Sketcher.Constraint("Coincident", 6, 2, 7, 1),
    Sketcher.Constraint("Coincident", 7, 2, 4, 1),
    Sketcher.Constraint("Vertical", 0),
    Sketcher.Constraint("Horizontal", 1),
    Sketcher.Constraint("Vertical", 2),
    Sketcher.Constraint("Horizontal", 3),
    Sketcher.Constraint("Vertical", 4),
    Sketcher.Constraint("Horizontal", 5),
    Sketcher.Constraint("Vertical", 6),
    Sketcher.Constraint("Horizontal", 7),
    Sketcher.Constraint("Vertical", 3, 2, 4, 2),
    Sketcher.Constraint("Vertical", 2, 2, 5, 2),
    Sketcher.Constraint("Equal", 2, 4),
    Sketcher.Constraint("DistanceX", 1, 2, 1, 1, 7.0),
    Sketcher.Constraint("DistanceY", 0, 2, 0, 1, 1.5),
    Sketcher.Constraint("DistanceY", 4, 2, 3, 2, 14.0),
    Sketcher.Constraint("DistanceX", -1, 1, 0, 2, 52.65),
    Sketcher.Constraint("DistanceY", -1, 1, 0, 2, 28.75),
])
pocket5 = body.newObject("PartDesign::Pocket", "Pocket004")
pocket5.Profile = sketch13
pocket5.Length = 14
pocket5.Reversed = True

# Sketch on YZ plane
sketch14 = body.newObject("Sketcher::SketchObject", "Sketch013")
sketch14.AttachmentSupport = (doc.getObject("YZ_Plane"), [""])
sketch14.MapMode = "FlatFace"
sketch14.AttachmentOffset = App.Placement(V(0, 0, -52.65), App.Rotation())
sketch14.addGeometry([
    Part.Circle(V(21.75, -5, 0), V(0, 0, 1), 3.5),
    Part.Circle(V(21.75, -5, 0), V(0, 0, 1), 2.5),
], False)
sketch14.addConstraint([
    Sketcher.Constraint("Coincident", 1, 3, 0, 3),
    Sketcher.Constraint("Diameter", 0, 7.0),
    Sketcher.Constraint("Diameter", 1, 5.0),
    Sketcher.Constraint("DistanceY", 0, 3, -1, 1, 5.0),
    Sketcher.Constraint("DistanceX", -1, 1, 0, 3, 21.75),
])
pad9 = body.newObject("PartDesign::Pad", "Pad008")
pad9.Profile = sketch14
pad9.Length = 5

doc.recompute()
